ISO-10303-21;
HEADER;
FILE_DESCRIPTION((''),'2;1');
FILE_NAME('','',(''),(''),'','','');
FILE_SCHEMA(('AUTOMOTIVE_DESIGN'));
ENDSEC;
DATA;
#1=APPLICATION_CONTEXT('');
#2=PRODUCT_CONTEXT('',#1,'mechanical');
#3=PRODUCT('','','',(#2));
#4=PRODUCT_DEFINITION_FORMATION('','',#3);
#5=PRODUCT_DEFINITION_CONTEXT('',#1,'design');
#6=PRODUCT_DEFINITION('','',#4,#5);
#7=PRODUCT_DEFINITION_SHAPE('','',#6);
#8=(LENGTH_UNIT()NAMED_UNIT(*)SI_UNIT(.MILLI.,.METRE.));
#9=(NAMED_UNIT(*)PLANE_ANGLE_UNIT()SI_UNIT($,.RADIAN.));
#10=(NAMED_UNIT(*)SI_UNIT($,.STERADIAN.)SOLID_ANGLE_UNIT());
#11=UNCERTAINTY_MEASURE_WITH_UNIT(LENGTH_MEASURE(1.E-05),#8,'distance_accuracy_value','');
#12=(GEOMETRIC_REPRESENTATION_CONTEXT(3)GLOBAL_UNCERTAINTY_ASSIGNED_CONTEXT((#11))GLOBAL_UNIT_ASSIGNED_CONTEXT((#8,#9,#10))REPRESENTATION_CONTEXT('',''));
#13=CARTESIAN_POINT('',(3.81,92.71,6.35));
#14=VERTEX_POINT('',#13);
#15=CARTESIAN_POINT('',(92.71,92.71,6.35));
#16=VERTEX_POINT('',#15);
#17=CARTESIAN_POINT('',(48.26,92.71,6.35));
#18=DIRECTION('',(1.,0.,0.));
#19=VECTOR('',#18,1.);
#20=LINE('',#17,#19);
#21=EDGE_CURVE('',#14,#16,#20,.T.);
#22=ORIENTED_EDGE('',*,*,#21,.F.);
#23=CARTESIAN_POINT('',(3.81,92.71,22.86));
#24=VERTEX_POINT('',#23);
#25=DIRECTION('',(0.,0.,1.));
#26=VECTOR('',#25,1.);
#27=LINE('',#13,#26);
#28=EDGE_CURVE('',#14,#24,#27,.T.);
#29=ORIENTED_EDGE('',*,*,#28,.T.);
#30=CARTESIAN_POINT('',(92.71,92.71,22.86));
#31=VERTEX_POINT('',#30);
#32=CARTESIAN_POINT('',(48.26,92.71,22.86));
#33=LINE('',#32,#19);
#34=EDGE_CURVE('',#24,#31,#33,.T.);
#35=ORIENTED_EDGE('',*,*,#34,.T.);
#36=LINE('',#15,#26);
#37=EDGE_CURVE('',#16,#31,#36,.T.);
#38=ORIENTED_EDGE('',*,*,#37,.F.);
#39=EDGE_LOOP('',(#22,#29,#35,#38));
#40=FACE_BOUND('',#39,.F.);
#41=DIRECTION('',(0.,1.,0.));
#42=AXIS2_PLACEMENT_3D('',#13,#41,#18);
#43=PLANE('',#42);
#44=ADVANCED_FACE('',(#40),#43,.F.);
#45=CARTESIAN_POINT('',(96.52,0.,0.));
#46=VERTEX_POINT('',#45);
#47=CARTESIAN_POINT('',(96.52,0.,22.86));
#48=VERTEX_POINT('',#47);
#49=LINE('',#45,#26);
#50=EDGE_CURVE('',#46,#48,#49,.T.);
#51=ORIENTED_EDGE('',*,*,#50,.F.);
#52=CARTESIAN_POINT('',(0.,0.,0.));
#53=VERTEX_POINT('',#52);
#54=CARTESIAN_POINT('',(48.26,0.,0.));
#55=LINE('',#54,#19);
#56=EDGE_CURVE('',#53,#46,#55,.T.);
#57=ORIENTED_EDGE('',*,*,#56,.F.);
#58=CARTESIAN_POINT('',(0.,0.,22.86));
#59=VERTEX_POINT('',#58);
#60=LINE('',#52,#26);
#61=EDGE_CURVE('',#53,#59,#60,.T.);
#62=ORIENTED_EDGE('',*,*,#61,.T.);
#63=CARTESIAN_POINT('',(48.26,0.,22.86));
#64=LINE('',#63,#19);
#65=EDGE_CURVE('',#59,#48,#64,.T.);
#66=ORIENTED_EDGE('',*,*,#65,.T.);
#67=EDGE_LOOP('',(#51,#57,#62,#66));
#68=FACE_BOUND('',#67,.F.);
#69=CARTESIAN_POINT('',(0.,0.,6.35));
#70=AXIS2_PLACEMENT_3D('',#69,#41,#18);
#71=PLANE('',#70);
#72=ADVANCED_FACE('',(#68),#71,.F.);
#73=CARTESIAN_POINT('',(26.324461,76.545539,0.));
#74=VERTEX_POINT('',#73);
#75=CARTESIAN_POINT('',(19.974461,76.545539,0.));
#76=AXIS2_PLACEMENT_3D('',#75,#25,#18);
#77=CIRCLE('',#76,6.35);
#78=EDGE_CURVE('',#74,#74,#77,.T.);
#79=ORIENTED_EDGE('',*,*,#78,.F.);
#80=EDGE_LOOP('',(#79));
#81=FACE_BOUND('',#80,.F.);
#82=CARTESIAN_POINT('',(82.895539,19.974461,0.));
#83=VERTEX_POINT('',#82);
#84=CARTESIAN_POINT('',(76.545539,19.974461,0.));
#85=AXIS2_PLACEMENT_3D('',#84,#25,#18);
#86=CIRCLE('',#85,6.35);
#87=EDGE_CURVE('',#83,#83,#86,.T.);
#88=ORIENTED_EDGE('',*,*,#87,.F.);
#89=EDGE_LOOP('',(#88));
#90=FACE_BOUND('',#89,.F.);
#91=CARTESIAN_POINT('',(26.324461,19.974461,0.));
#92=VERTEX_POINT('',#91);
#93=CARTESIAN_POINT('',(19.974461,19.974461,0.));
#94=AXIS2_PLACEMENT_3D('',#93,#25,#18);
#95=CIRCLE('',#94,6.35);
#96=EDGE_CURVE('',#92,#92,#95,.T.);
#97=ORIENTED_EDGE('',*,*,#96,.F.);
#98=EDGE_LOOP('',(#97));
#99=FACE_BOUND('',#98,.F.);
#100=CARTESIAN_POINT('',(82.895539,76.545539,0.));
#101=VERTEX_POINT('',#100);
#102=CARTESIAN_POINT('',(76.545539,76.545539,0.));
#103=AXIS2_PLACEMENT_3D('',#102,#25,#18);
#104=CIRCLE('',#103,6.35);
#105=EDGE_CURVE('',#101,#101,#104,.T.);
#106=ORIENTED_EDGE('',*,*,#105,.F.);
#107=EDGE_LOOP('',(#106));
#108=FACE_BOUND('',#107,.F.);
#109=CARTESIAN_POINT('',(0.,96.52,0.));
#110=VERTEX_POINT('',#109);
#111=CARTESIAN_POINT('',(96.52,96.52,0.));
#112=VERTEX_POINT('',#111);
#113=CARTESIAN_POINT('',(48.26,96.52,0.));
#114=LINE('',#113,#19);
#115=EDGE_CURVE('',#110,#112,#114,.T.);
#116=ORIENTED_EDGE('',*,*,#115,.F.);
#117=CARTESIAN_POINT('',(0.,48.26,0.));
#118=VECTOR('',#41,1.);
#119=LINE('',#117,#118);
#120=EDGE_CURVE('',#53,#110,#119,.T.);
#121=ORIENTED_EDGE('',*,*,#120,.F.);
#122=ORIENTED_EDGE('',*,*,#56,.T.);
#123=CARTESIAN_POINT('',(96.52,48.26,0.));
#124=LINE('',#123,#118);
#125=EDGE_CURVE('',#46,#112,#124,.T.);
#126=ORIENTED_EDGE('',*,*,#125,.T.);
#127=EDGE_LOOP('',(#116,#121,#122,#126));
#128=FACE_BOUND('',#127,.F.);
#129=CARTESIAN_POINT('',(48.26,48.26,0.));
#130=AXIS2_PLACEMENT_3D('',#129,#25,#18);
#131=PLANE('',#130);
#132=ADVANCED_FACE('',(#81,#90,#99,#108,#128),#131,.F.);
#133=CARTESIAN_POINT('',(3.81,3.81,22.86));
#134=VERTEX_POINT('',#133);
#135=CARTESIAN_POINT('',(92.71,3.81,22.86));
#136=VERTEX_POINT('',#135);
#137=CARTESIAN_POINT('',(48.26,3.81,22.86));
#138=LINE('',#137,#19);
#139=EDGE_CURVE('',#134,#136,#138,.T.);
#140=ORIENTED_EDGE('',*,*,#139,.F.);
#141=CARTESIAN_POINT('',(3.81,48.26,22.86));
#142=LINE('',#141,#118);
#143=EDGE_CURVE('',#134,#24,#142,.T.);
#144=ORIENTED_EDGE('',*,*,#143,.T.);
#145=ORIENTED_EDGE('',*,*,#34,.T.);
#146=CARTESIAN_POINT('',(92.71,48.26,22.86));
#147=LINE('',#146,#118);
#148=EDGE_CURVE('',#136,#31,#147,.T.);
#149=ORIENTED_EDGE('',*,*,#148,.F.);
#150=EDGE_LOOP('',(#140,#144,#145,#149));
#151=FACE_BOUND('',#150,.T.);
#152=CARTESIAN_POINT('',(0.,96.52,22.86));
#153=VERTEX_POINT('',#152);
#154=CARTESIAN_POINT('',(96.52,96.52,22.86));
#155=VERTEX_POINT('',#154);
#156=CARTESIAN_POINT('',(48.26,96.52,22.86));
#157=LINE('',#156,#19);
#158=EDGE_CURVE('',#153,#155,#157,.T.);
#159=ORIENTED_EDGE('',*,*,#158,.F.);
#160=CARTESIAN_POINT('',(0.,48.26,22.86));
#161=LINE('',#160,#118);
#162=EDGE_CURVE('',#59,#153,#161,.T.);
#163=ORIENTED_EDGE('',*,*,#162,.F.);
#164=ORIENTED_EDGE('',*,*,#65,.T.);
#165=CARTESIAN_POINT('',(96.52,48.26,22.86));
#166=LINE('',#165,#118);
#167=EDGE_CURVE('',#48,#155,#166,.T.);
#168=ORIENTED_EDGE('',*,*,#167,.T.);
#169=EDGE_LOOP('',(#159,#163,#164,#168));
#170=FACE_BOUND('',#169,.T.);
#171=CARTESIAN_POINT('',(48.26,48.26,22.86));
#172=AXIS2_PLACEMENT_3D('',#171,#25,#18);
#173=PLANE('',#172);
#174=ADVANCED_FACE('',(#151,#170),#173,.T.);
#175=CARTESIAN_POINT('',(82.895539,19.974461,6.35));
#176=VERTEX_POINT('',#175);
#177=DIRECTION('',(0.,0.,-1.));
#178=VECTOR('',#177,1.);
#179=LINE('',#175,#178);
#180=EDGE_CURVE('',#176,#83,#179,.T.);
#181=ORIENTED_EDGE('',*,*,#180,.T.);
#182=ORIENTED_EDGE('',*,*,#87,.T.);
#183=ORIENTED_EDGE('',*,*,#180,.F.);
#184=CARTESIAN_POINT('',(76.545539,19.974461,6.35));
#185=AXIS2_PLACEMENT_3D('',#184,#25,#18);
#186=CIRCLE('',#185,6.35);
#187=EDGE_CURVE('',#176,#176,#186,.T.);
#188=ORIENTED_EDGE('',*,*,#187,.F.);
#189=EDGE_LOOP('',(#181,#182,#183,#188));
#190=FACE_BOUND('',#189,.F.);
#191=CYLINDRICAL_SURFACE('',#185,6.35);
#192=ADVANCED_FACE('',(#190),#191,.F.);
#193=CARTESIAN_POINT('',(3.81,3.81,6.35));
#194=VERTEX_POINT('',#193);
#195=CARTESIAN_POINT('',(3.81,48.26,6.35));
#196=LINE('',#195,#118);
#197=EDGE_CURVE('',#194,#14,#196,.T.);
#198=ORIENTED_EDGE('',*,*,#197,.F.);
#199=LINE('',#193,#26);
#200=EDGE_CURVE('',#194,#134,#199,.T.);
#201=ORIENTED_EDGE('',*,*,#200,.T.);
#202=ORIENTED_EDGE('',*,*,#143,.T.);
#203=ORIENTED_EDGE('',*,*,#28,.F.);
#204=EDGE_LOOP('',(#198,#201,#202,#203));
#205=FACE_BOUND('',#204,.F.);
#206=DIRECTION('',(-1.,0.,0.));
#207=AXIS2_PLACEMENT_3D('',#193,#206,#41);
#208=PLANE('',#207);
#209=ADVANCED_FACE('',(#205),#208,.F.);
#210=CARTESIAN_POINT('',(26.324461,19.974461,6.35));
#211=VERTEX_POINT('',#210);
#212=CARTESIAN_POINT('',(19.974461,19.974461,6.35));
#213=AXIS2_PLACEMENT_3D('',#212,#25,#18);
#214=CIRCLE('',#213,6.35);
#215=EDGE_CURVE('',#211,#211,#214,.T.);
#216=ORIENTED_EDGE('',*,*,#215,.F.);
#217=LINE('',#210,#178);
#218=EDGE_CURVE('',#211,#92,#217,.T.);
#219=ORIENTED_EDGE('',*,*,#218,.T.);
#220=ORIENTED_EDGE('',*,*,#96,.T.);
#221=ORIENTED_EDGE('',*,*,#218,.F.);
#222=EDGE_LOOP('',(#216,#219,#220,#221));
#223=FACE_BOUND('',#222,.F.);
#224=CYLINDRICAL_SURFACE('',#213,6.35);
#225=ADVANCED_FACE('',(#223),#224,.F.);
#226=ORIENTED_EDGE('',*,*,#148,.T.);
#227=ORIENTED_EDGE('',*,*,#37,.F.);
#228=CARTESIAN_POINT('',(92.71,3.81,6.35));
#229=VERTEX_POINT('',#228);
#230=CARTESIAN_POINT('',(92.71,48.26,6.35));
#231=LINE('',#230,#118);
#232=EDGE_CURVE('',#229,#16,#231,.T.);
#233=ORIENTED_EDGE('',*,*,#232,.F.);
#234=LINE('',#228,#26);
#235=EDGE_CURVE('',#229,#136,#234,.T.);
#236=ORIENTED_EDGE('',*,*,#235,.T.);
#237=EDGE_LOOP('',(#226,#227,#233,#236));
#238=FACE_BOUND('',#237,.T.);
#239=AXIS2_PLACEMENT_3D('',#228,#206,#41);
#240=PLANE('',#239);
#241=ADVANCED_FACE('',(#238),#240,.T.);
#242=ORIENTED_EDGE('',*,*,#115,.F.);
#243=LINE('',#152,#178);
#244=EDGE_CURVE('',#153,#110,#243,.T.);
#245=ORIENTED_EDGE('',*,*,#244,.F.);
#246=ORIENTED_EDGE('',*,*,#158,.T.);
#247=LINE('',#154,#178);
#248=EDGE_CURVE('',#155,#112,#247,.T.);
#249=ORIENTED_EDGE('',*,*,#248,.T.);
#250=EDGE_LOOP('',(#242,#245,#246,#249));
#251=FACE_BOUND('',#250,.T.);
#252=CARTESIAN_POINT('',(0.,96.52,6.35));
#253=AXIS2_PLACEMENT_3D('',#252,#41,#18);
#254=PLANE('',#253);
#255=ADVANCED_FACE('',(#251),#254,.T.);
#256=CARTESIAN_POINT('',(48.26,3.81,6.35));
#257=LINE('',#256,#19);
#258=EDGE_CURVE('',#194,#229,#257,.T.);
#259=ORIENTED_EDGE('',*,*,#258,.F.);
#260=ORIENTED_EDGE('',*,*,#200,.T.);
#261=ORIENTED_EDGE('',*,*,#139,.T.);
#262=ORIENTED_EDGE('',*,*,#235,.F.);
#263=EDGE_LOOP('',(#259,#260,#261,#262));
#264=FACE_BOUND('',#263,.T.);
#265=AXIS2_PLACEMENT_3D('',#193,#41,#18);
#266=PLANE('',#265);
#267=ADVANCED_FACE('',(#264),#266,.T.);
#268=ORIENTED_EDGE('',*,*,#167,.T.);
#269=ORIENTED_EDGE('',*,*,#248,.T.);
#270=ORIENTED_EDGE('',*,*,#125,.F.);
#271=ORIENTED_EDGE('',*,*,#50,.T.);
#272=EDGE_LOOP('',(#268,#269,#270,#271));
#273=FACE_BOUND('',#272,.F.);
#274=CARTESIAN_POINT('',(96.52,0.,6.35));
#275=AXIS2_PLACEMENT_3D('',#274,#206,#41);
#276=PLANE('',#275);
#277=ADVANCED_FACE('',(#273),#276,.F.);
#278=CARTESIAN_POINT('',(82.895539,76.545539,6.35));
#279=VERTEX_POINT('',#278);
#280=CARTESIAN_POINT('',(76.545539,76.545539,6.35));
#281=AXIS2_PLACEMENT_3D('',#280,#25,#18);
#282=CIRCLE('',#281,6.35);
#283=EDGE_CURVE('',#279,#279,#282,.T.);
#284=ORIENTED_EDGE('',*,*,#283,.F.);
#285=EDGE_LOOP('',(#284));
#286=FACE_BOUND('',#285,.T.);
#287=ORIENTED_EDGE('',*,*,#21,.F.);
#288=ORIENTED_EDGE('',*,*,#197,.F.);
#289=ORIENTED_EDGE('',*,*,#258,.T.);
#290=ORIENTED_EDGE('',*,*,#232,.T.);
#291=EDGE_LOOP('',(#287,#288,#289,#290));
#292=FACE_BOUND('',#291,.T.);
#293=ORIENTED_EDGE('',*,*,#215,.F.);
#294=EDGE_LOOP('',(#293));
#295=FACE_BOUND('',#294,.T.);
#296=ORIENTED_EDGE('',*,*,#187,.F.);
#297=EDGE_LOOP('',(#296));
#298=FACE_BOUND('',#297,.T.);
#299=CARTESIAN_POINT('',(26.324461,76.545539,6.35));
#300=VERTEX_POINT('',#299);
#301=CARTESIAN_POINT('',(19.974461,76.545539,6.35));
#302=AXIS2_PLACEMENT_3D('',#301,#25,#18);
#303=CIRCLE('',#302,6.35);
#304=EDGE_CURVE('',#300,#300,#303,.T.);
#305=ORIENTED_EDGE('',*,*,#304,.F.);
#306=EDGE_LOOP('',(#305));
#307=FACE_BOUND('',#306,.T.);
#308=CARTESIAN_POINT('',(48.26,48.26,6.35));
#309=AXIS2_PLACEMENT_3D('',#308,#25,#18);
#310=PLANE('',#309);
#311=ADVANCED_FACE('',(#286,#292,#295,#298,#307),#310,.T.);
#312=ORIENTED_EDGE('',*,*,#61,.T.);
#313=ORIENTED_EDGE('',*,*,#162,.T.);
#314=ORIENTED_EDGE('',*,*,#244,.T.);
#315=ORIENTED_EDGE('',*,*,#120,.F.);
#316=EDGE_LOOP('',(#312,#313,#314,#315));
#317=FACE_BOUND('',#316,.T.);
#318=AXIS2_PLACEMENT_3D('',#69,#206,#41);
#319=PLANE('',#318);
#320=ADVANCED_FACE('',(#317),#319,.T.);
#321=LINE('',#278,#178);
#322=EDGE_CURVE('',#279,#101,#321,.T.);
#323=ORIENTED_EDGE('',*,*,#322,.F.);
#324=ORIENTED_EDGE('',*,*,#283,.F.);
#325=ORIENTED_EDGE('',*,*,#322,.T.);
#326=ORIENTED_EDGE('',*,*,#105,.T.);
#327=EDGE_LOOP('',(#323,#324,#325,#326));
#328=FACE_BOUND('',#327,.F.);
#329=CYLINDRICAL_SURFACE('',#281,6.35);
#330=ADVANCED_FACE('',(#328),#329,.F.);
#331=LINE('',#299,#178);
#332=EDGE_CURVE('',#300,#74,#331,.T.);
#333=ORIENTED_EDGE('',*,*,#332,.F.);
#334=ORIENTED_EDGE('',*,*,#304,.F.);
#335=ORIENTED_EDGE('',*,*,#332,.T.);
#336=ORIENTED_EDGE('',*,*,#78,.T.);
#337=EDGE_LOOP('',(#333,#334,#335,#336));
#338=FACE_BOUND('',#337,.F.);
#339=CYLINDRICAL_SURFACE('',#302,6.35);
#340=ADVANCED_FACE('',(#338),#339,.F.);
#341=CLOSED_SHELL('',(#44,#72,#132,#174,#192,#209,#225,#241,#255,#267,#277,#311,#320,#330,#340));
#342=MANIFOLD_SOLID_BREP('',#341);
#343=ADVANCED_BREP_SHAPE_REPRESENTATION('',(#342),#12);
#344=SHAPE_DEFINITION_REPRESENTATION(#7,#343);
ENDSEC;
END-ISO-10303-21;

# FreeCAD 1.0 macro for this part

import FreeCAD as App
import Part
import Sketcher

V = App.Vector
Q = App.Units.Quantity

doc = App.newDocument("Part")
body = doc.addObject("PartDesign::Body", "Body")

sketch1 = doc.addObject("Sketcher::SketchObject", "Sketch")
body.addObject(sketch1)
sketch1.AttachmentSupport = (doc.XY_Plane, [""])
sketch1.MapMode = "FlatFace"
sketch1.addGeometry([
    Part.LineSegment(V(0, 97, 0), V(0, 0, 0)),
    Part.LineSegment(V(0, 0, 0), V(97, 0, 0)),
    Part.LineSegment(V(97, 0, 0), V(97, 97, 0)),
    Part.LineSegment(V(97, 97, 0), V(0, 97, 0)),
], False)
sketch1.addConstraint([
    Sketcher.Constraint("Coincident", 0, 2, 1, 1),
    Sketcher.Constraint("Coincident", 1, 2, 2, 1),
    Sketcher.Constraint("Coincident", 2, 2, 3, 1),
    Sketcher.Constraint("Coincident", 3, 2, 0, 1),
    Sketcher.Constraint("Vertical", 0),
    Sketcher.Constraint("Horizontal", 1),
    Sketcher.Constraint("Vertical", 2),
    Sketcher.Constraint("Horizontal", 3),
    Sketcher.Constraint("Coincident", 0, 2, -1, 1),
    Sketcher.Constraint("Equal", 3, 0),
    Sketcher.Constraint("DistanceX", 1, 1, 1, 2, Q("3.8 in")),
])
pad1 = doc.addObject("PartDesign::Pad", "Pad")
body.addObject(pad1)
pad1.Profile = sketch1
pad1.Length = Q("0.25 in")

sketch2 = doc.addObject("Sketcher::SketchObject", "Sketch001")
body.addObject(sketch2)
sketch2.AttachmentSupport = (doc.XY_Plane, [""])
sketch2.MapMode = "FlatFace"
sketch2.AttachmentOffset = App.Placement(V(0, 0, 0.25 * 25.4), App.Rotation())
sketch2.addGeometry([
    Part.LineSegment(V(0, 97, 0), V(0, 0, 0)),
    Part.LineSegment(V(0, 0, 0), V(97, 0, 0)),
    Part.LineSegment(V(97, 0, 0), V(97, 97, 0)),
    Part.LineSegment(V(97, 97, 0), V(0, 97, 0)),
    Part.LineSegment(V(93, 4, 0), V(4, 4, 0)),
    Part.LineSegment(V(4, 4, 0), V(4, 93, 0)),
    Part.LineSegment(V(4, 93, 0), V(93, 93, 0)),
    Part.LineSegment(V(93, 93, 0), V(93, 4, 0)),
], False)
sketch2.addConstraint([
    Sketcher.Constraint("Coincident", 0, 2, 1, 1),
    Sketcher.Constraint("Coincident", 1, 2, 2, 1),
    Sketcher.Constraint("Coincident", 2, 2, 3, 1),
    Sketcher.Constraint("Coincident", 3, 2, 0, 1),
    Sketcher.Constraint("Coincident", 4, 2, 5, 1),
    Sketcher.Constraint("Coincident", 5, 2, 6, 1),
    Sketcher.Constraint("Coincident", 6, 2, 7, 1),
    Sketcher.Constraint("Coincident", 7, 2, 4, 1),
    Sketcher.Constraint("Vertical", 0),
    Sketcher.Constraint("Horizontal", 1),
    Sketcher.Constraint("Vertical", 2),
    Sketcher.Constraint("Horizontal", 3),
    Sketcher.Constraint("Horizontal", 4),
    Sketcher.Constraint("Vertical", 5),
    Sketcher.Constraint("Horizontal", 6),
    Sketcher.Constraint("Vertical", 7),
    Sketcher.Constraint("Coincident", 0, 2, -1, 1),
    Sketcher.Constraint("Equal", 3, 0),
    Sketcher.Constraint("Equal", 6, 5),
    Sketcher.Constraint("DistanceX", 1, 1, 1, 2, Q("3.8 in")),
    Sketcher.Constraint("DistanceX", 4, 2, 4, 1, Q("3.5 in")),
    Sketcher.Constraint("DistanceX", -1, 1, 4, 2, Q("0.15 in")),
    Sketcher.Constraint("DistanceY", -1, 1, 4, 2, Q("0.15 in")),
])
pad2 = doc.addObject("PartDesign::Pad", "Pad001")
body.addObject(pad2)
pad2.Profile = sketch2
pad2.Length = Q("0.65 in")

sketch3 = doc.addObject("Sketcher::SketchObject", "Sketch002")
body.addObject(sketch3)
sketch3.AttachmentSupport = (doc.XY_Plane, [""])
sketch3.MapMode = "FlatFace"
sketch3.AttachmentOffset = App.Placement(V(0, 0, 0.25 * 25.4), App.Rotation())
sketch3.addGeometry([
    Part.Circle(V(20, 77, 0), V(0, 0, 1), 6),
    Part.Circle(V(20, 20, 0), V(0, 0, 1), 6),
    Part.Circle(V(77, 20, 0), V(0, 0, 1), 6),
    Part.Circle(V(77, 77, 0), V(0, 0, 1), 6),
], False)
sketch3.addConstraint([
    Sketcher.Constraint("Equal", 0, 1),
    Sketcher.Constraint("Equal", 1, 2),
    Sketcher.Constraint("Equal", 2, 3),
    Sketcher.Constraint("Horizontal", 1, 3, 2, 3),
    Sketcher.Constraint("Horizontal", 0, 3, 3, 3),
    Sketcher.Constraint("Vertical", 0, 3, 1, 3),
    Sketcher.Constraint("Vertical", 2, 3, 3, 3),
    Sketcher.Constraint("Diameter", 0, Q("0.5 in")),
    Sketcher.Constraint("DistanceX", -1, 1, 0, 3, 19.974461),
    Sketcher.Constraint("DistanceY", -1, 1, 0, 3, 76.545539),
    Sketcher.Constraint("DistanceY", -1, 1, 1, 3, 19.974461),
    Sketcher.Constraint("DistanceX", -1, 1, 2, 3, 76.545539),
])
pocket1 = doc.addObject("PartDesign::Pocket", "Pocket")
body.addObject(pocket1)
pocket1.Profile = sketch3
pocket1.Type = "ThroughAll"

doc.recompute()
